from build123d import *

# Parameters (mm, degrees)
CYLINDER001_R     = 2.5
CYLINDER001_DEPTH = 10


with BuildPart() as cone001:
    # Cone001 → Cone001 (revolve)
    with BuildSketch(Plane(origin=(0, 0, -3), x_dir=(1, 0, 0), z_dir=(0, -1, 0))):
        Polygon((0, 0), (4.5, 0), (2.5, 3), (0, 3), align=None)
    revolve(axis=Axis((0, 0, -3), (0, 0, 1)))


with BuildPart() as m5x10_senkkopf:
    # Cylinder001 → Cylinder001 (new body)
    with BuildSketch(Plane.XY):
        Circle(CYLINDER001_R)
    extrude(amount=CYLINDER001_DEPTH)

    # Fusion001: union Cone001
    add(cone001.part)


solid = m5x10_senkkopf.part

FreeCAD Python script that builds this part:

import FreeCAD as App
import Part
import Sketcher

V = App.Vector


def add_polygon(sketch, points):
    """Adds a closed chain of lines whose ends are joined by coincident constraints."""
    first, n = sketch.GeometryCount, len(points)
    for a, b in zip(points, points[1:] + points[:1]):
        sketch.addGeometry(Part.LineSegment(App.Vector(*a, 0), App.Vector(*b, 0)), False)
    for i in range(n):
        sketch.addConstraint(Sketcher.Constraint("Coincident", first + i, 2, first + (i + 1) % n, 1))

doc = App.newDocument("Part")
body = doc.addObject("PartDesign::Body", "Body")

# Sketch on XZ plane
sketch1 = body.newObject("Sketcher::SketchObject", "Sketch")
sketch1.AttachmentSupport = (doc.getObject("XZ_Plane"), [""])
sketch1.MapMode = "FlatFace"
add_polygon(sketch1, [(0, -3), (4.5, -3), (2.5, 0), (0, 0)])  # lines 0-3
sketch1.addConstraint([
    Sketcher.Constraint("Horizontal", 0),
    Sketcher.Constraint("Horizontal", 2),
    Sketcher.Constraint("Vertical", 3),
    Sketcher.Constraint("Coincident", 2, 2, -1, 1),
    Sketcher.Constraint("DistanceY", 3, 2, 3, 1, 3.0),
    Sketcher.Constraint("DistanceX", 0, 1, 0, 2, 4.5),
    Sketcher.Constraint("DistanceX", 2, 2, 2, 1, 2.5),
])
revolution = body.newObject("PartDesign::Revolution", "Revolution")
revolution.Profile = sketch1
revolution.ReferenceAxis = (sketch1, ["V_Axis"])
revolution.Angle = 360
body2 = doc.addObject("PartDesign::Body", "Body001")

# Sketch on XY plane
sketch2 = body2.newObject("Sketcher::SketchObject", "Sketch001")
sketch2.AttachmentSupport = (doc.getObject("XY_Plane001"), [""])
sketch2.MapMode = "FlatFace"
sketch2.addGeometry(Part.Circle(V(0, 0, 0), V(0, 0, 1), 2.5), False)
sketch2.addConstraint([
    Sketcher.Constraint("Coincident", 0, 3, -1, 1),
    Sketcher.Constraint("Diameter", 0, 5.0),
])
pad1 = body2.newObject("PartDesign::Pad", "Pad")
pad1.Profile = sketch2
pad1.Length = 10
doc.recompute()

boolean = body2.newObject("PartDesign::Boolean", "Boolean")
boolean.Type = "Fuse"
boolean.addObjects([body])

doc.recompute()
